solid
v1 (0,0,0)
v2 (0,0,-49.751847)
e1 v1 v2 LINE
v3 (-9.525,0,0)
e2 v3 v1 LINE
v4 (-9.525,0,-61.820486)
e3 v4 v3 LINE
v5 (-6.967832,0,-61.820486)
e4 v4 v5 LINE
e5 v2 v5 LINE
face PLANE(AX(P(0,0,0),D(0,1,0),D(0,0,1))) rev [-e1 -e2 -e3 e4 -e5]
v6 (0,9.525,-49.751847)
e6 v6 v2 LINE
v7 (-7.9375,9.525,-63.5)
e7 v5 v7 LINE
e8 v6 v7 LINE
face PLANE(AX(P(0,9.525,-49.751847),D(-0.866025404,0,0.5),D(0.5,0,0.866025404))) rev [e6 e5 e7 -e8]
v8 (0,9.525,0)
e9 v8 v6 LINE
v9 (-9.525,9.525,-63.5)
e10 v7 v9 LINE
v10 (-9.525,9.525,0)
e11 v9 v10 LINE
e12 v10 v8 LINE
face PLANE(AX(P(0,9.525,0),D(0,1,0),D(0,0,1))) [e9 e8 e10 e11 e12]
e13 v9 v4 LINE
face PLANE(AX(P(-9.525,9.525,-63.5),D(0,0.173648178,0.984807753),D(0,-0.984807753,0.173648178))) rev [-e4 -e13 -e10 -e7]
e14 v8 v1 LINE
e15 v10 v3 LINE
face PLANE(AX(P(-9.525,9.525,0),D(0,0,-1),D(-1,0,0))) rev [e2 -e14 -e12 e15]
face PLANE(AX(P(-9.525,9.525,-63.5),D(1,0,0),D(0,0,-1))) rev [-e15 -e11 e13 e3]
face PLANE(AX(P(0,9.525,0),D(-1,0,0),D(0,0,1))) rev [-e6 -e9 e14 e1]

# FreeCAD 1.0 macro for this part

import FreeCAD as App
import Part
import Sketcher

V = App.Vector
Q = App.Units.Quantity


def add_polygon(sketch, points):
    """Adds a closed chain of lines whose ends are joined by coincident constraints."""
    first, n = sketch.GeometryCount, len(points)
    for a, b in zip(points, points[1:] + points[:1]):
        sketch.addGeometry(Part.LineSegment(App.Vector(*a, 0), App.Vector(*b, 0)), False)
    for i in range(n):
        sketch.addConstraint(Sketcher.Constraint("Coincident", first + i, 2, first + (i + 1) % n, 1))

doc = App.newDocument("Part")
body = doc.addObject("PartDesign::Body", "Body")

sketch1 = body.newObject("Sketcher::SketchObject", "Sketch")
sketch1.AttachmentSupport = (doc.getObject("XZ_Plane"), [""])
sketch1.MapMode = "FlatFace"
add_polygon(sketch1, [(0, 0), (0, -49.751847), (-7.9375, -63.5), (-9.525, -63.5), (-9.525, 0)])
sketch1.addConstraint(Sketcher.Constraint("Vertical", 0))
sketch1.addConstraint(Sketcher.Constraint("Horizontal", 2))
sketch1.addConstraint(Sketcher.Constraint("Vertical", 3))
sketch1.addConstraint(Sketcher.Constraint("Horizontal", 4))
sketch1.addConstraint(Sketcher.Constraint("Coincident", 4, 2, -1, 1))
sketch1.addConstraint(Sketcher.Constraint("DistanceY", 3, 1, 3, 2, Q("2.5 in")))
sketch1.addConstraint(Sketcher.Constraint("Angle", 1, Q("-120 deg")))
sketch1.addConstraint(Sketcher.Constraint("DistanceX", 2, 2, 2, 1, Q("0.0625 in")))
sketch1.addConstraint(Sketcher.Constraint("DistanceX", 4, 1, 4, 2, Q("0.375 in")))
pad1 = body.newObject("PartDesign::Pad", "Pad")
pad1.Profile = sketch1
pad1.Length = Q("0.375 in")
pad1.Reversed = True

sketch2 = body.newObject("Sketcher::SketchObject", "Sketch001")
sketch2.AttachmentSupport = (doc.getObject("YZ_Plane"), [""])
sketch2.MapMode = "FlatFace"
add_polygon(sketch2, [(9.525, -63.5), (0, -61.820486), (0, -63.5)])
sketch2.addConstraint(Sketcher.Constraint("Vertical", 1))
sketch2.addConstraint(Sketcher.Constraint("Horizontal", 2))
sketch2.addConstraint(Sketcher.Constraint("PointOnObject", 0, 2, -2))
sketch2.addConstraint(Sketcher.Constraint("Angle", 0, Q("170 deg")))
sketch2.addConstraint(Sketcher.Constraint("DistanceY", 1, 2, -1, 1, Q("2.5 in")))
sketch2.addConstraint(Sketcher.Constraint("DistanceX", 2, 1, 2, 2, Q("0.375 in")))
pocket1 = body.newObject("PartDesign::Pocket", "Pocket")
pocket1.Profile = sketch2
pocket1.Length = Q("0.375 in")

doc.recompute()
